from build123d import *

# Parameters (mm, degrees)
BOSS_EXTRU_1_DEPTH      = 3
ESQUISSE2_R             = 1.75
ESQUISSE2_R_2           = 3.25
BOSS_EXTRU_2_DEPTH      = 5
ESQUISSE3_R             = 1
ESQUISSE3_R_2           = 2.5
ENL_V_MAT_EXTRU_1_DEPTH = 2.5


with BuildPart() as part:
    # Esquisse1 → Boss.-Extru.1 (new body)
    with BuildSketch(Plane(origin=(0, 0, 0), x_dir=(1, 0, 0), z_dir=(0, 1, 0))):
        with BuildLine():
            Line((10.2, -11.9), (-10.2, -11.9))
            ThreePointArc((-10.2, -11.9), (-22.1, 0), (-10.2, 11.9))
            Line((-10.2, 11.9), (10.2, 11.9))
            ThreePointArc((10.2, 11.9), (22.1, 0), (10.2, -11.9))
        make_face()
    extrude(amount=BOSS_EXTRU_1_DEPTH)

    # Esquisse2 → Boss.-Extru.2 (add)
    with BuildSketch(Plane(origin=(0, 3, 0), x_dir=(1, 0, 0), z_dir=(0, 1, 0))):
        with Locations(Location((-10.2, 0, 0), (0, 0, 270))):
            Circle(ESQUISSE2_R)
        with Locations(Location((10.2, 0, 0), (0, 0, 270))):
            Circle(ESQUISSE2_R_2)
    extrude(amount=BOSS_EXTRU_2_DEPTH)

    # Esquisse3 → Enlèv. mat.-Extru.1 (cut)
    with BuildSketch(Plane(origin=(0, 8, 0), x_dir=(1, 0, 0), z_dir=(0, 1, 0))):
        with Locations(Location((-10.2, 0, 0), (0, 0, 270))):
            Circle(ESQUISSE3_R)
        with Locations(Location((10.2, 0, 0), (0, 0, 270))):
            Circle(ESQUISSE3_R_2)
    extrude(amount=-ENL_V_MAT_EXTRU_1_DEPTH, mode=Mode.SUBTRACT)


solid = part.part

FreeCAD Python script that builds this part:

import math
import FreeCAD as App
import Part
import Sketcher
Q = App.Units.Quantity

doc = App.newDocument("Part")
params = doc.addObject("Spreadsheet::Sheet", "Params")
for row, (alias, value) in enumerate([
    ("sketch1_radius", "11.9 mm"),
    ("sketch1_width", "20.4 mm"),
    ("pad1_length", "3 mm"),
    ("sketch2_diameter", "3.5 mm"),
    ("sketch2_diameter2", "6.5 mm"),
    ("pad2_length", "5 mm"),
    ("sketch3_diameter", "2 mm"),
    ("sketch3_diameter2", "5 mm"),
    ("pocket1_length", "2.5 mm"),
], start=1):
    params.set(f"A{row}", alias)
    params.set(f"B{row}", "=" + value)
    params.setAlias(f"B{row}", alias)

body = doc.addObject("PartDesign::Body", "Body")

sketch1 = doc.addObject("Sketcher::SketchObject", "Sketch")
body.addObject(sketch1)
sketch1.AttachmentSupport = (doc.XZ_Plane, [""])
sketch1.MapMode = "FlatFace"
sketch1.addGeometry([
    Part.LineSegment(App.Vector(-10, 12, 0), App.Vector(10, 12, 0)),
    Part.ArcOfCircle(Part.Circle(App.Vector(10, 0, 0), App.Vector(0, 0, 1), 12), math.radians(-90), math.radians(90)),
    Part.LineSegment(App.Vector(10, -12, 0), App.Vector(-10, -12, 0)),
    Part.ArcOfCircle(Part.Circle(App.Vector(-10, 0, 0), App.Vector(0, 0, 1), 12), math.radians(90), math.radians(270)),
], False)
sketch1.addConstraint([
    Sketcher.Constraint("Tangent", 0, 2, 1, 2),
    Sketcher.Constraint("Tangent", 1, 1, 2, 1),
    Sketcher.Constraint("Tangent", 2, 2, 3, 2),
    Sketcher.Constraint("Tangent", 3, 1, 0, 1),
    Sketcher.Constraint("Horizontal", 0),
    Sketcher.Constraint("Horizontal", 2),
    Sketcher.Constraint("Symmetric", 1, 3, 3, 3, -1, 1),
    Sketcher.Constraint("Radius", 1, Q("11.9 mm")),
    Sketcher.Constraint("DistanceX", 0, 1, 0, 2, Q("20.4 mm")),
])
sketch1.setExpression("Constraints[7]", "Params.sketch1_radius")
sketch1.setExpression("Constraints[8]", "Params.sketch1_width")
pad1 = doc.addObject("PartDesign::Pad", "Pad")
body.addObject(pad1)
pad1.Profile = sketch1
pad1.setExpression("Length", "Params.pad1_length")
pad1.Reversed = True

sketch2 = doc.addObject("Sketcher::SketchObject", "Sketch001")
body.addObject(sketch2)
sketch2.AttachmentSupport = (doc.XZ_Plane, [""])
sketch2.MapMode = "FlatFace"
sketch2.AttachmentOffset = App.Placement(App.Vector(0, 0, -3), App.Rotation())
sketch2.addGeometry([
    Part.Circle(App.Vector(-10.2, 0, 0), App.Vector(0, 0, 1), 1.8),
    Part.Circle(App.Vector(10.2, 0, 0), App.Vector(0, 0, 1), 3.2),
], False)
sketch2.addConstraint([
    Sketcher.Constraint("Symmetric", 0, 3, 1, 3, -1, 1),
    Sketcher.Constraint("PointOnObject", 0, 3, -1),
    Sketcher.Constraint("Diameter", 0, Q("3.5 mm")),
    Sketcher.Constraint("Diameter", 1, Q("6.5 mm")),
    Sketcher.Constraint("DistanceX", 0, 3, -1, 1, Q("10.2 mm")),
])
sketch2.setExpression("Constraints[2]", "Params.sketch2_diameter")
sketch2.setExpression("Constraints[3]", "Params.sketch2_diameter2")
pad2 = doc.addObject("PartDesign::Pad", "Pad001")
body.addObject(pad2)
pad2.Profile = sketch2
pad2.setExpression("Length", "Params.pad2_length")
pad2.Reversed = True

sketch3 = doc.addObject("Sketcher::SketchObject", "Sketch002")
body.addObject(sketch3)
sketch3.AttachmentSupport = (doc.XZ_Plane, [""])
sketch3.MapMode = "FlatFace"
sketch3.AttachmentOffset = App.Placement(App.Vector(0, 0, -8), App.Rotation())
sketch3.addGeometry([
    Part.Circle(App.Vector(-10.2, 0, 0), App.Vector(0, 0, 1), 1),
    Part.Circle(App.Vector(10.2, 0, 0), App.Vector(0, 0, 1), 2.5),
], False)
sketch3.addConstraint([
    Sketcher.Constraint("Symmetric", 0, 3, 1, 3, -1, 1),
    Sketcher.Constraint("PointOnObject", 0, 3, -1),
    Sketcher.Constraint("Diameter", 0, Q("2 mm")),
    Sketcher.Constraint("Diameter", 1, Q("5 mm")),
    Sketcher.Constraint("DistanceX", 0, 3, -1, 1, Q("10.2 mm")),
])
sketch3.setExpression("Constraints[2]", "Params.sketch3_diameter")
sketch3.setExpression("Constraints[3]", "Params.sketch3_diameter2")
pocket1 = doc.addObject("PartDesign::Pocket", "Pocket")
body.addObject(pocket1)
pocket1.Profile = sketch3
pocket1.setExpression("Length", "Params.pocket1_length")
pocket1.Reversed = True

doc.recompute()
